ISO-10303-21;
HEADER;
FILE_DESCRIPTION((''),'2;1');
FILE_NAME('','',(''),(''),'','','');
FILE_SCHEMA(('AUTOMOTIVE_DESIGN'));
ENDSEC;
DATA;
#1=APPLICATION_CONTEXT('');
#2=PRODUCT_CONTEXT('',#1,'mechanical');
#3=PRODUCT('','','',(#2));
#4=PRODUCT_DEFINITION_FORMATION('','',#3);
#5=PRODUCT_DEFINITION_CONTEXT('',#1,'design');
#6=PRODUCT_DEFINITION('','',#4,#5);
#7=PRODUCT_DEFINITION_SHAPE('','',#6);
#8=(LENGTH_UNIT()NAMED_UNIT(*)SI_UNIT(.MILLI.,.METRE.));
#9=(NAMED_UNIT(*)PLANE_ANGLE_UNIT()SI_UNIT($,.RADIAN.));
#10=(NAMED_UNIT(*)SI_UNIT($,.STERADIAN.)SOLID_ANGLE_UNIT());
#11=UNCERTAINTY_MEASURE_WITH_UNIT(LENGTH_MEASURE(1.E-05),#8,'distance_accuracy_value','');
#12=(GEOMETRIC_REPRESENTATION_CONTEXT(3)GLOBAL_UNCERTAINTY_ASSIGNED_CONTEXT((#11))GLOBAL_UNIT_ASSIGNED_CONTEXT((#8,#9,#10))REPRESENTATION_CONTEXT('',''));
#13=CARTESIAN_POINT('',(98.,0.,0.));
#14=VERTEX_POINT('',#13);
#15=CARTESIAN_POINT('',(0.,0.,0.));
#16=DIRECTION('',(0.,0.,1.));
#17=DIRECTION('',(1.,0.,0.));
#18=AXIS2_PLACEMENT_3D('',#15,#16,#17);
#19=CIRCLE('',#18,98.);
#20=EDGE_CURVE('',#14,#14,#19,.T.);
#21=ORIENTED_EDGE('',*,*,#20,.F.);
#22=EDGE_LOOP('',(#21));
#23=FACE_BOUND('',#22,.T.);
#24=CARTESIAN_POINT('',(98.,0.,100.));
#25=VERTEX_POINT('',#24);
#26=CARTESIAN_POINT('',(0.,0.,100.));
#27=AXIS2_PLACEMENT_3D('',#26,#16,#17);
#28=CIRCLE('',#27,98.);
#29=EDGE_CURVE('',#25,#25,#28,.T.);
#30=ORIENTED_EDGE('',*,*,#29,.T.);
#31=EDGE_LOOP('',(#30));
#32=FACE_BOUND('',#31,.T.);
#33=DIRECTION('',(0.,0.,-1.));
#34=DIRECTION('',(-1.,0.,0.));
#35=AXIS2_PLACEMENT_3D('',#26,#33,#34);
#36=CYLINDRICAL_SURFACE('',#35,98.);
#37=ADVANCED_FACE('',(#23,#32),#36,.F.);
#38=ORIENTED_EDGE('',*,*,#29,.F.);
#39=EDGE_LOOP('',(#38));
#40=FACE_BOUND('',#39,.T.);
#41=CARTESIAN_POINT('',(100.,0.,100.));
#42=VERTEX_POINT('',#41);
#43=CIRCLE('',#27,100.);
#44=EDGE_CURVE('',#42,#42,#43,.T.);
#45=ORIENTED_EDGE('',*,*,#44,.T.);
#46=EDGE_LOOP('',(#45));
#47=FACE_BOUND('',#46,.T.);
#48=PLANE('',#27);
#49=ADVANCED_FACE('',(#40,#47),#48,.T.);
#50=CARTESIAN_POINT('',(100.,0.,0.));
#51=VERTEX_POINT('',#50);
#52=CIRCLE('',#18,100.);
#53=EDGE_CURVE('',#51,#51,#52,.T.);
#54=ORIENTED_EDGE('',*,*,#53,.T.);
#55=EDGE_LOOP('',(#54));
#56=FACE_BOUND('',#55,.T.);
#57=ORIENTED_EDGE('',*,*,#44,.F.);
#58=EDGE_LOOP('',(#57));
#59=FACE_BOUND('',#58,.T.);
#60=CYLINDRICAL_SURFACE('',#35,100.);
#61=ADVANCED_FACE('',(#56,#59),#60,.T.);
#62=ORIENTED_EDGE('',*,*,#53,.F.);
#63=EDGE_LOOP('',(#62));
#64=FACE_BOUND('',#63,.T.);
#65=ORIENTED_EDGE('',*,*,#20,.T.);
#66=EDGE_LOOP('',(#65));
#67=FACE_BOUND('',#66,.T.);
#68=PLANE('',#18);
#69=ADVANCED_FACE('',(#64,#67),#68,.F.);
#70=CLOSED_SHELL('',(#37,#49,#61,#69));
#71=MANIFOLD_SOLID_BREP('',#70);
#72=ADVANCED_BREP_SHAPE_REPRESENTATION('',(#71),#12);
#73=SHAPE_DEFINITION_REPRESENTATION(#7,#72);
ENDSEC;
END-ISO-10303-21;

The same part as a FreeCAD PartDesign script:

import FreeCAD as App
import Part
import Sketcher
Q = App.Units.Quantity

doc = App.newDocument("Part")
body = doc.addObject("PartDesign::Body", "Body")

sketch1 = doc.addObject("Sketcher::SketchObject", "Sketch")
body.addObject(sketch1)
sketch1.AttachmentSupport = (doc.XY_Plane, [""])
sketch1.MapMode = "FlatFace"
sketch1.addGeometry(Part.Circle(App.Vector(0, 0, 0), App.Vector(0, 0, 1), 100), False)
sketch1.addGeometry(Part.Circle(App.Vector(0, 0, 0), App.Vector(0, 0, 1), 98), False)
sketch1.addConstraint(Sketcher.Constraint("Coincident", 0, 3, -1, 1))
sketch1.addConstraint(Sketcher.Constraint("Coincident", 1, 3, -1, 1))
sketch1.addConstraint(Sketcher.Constraint("Diameter", 0, Q("200 mm")))
sketch1.addConstraint(Sketcher.Constraint("Diameter", 1, Q("196 mm")))
pad1 = doc.addObject("PartDesign::Pad", "Pad")
body.addObject(pad1)
pad1.Profile = sketch1
pad1.Length = 100

doc.recompute()
